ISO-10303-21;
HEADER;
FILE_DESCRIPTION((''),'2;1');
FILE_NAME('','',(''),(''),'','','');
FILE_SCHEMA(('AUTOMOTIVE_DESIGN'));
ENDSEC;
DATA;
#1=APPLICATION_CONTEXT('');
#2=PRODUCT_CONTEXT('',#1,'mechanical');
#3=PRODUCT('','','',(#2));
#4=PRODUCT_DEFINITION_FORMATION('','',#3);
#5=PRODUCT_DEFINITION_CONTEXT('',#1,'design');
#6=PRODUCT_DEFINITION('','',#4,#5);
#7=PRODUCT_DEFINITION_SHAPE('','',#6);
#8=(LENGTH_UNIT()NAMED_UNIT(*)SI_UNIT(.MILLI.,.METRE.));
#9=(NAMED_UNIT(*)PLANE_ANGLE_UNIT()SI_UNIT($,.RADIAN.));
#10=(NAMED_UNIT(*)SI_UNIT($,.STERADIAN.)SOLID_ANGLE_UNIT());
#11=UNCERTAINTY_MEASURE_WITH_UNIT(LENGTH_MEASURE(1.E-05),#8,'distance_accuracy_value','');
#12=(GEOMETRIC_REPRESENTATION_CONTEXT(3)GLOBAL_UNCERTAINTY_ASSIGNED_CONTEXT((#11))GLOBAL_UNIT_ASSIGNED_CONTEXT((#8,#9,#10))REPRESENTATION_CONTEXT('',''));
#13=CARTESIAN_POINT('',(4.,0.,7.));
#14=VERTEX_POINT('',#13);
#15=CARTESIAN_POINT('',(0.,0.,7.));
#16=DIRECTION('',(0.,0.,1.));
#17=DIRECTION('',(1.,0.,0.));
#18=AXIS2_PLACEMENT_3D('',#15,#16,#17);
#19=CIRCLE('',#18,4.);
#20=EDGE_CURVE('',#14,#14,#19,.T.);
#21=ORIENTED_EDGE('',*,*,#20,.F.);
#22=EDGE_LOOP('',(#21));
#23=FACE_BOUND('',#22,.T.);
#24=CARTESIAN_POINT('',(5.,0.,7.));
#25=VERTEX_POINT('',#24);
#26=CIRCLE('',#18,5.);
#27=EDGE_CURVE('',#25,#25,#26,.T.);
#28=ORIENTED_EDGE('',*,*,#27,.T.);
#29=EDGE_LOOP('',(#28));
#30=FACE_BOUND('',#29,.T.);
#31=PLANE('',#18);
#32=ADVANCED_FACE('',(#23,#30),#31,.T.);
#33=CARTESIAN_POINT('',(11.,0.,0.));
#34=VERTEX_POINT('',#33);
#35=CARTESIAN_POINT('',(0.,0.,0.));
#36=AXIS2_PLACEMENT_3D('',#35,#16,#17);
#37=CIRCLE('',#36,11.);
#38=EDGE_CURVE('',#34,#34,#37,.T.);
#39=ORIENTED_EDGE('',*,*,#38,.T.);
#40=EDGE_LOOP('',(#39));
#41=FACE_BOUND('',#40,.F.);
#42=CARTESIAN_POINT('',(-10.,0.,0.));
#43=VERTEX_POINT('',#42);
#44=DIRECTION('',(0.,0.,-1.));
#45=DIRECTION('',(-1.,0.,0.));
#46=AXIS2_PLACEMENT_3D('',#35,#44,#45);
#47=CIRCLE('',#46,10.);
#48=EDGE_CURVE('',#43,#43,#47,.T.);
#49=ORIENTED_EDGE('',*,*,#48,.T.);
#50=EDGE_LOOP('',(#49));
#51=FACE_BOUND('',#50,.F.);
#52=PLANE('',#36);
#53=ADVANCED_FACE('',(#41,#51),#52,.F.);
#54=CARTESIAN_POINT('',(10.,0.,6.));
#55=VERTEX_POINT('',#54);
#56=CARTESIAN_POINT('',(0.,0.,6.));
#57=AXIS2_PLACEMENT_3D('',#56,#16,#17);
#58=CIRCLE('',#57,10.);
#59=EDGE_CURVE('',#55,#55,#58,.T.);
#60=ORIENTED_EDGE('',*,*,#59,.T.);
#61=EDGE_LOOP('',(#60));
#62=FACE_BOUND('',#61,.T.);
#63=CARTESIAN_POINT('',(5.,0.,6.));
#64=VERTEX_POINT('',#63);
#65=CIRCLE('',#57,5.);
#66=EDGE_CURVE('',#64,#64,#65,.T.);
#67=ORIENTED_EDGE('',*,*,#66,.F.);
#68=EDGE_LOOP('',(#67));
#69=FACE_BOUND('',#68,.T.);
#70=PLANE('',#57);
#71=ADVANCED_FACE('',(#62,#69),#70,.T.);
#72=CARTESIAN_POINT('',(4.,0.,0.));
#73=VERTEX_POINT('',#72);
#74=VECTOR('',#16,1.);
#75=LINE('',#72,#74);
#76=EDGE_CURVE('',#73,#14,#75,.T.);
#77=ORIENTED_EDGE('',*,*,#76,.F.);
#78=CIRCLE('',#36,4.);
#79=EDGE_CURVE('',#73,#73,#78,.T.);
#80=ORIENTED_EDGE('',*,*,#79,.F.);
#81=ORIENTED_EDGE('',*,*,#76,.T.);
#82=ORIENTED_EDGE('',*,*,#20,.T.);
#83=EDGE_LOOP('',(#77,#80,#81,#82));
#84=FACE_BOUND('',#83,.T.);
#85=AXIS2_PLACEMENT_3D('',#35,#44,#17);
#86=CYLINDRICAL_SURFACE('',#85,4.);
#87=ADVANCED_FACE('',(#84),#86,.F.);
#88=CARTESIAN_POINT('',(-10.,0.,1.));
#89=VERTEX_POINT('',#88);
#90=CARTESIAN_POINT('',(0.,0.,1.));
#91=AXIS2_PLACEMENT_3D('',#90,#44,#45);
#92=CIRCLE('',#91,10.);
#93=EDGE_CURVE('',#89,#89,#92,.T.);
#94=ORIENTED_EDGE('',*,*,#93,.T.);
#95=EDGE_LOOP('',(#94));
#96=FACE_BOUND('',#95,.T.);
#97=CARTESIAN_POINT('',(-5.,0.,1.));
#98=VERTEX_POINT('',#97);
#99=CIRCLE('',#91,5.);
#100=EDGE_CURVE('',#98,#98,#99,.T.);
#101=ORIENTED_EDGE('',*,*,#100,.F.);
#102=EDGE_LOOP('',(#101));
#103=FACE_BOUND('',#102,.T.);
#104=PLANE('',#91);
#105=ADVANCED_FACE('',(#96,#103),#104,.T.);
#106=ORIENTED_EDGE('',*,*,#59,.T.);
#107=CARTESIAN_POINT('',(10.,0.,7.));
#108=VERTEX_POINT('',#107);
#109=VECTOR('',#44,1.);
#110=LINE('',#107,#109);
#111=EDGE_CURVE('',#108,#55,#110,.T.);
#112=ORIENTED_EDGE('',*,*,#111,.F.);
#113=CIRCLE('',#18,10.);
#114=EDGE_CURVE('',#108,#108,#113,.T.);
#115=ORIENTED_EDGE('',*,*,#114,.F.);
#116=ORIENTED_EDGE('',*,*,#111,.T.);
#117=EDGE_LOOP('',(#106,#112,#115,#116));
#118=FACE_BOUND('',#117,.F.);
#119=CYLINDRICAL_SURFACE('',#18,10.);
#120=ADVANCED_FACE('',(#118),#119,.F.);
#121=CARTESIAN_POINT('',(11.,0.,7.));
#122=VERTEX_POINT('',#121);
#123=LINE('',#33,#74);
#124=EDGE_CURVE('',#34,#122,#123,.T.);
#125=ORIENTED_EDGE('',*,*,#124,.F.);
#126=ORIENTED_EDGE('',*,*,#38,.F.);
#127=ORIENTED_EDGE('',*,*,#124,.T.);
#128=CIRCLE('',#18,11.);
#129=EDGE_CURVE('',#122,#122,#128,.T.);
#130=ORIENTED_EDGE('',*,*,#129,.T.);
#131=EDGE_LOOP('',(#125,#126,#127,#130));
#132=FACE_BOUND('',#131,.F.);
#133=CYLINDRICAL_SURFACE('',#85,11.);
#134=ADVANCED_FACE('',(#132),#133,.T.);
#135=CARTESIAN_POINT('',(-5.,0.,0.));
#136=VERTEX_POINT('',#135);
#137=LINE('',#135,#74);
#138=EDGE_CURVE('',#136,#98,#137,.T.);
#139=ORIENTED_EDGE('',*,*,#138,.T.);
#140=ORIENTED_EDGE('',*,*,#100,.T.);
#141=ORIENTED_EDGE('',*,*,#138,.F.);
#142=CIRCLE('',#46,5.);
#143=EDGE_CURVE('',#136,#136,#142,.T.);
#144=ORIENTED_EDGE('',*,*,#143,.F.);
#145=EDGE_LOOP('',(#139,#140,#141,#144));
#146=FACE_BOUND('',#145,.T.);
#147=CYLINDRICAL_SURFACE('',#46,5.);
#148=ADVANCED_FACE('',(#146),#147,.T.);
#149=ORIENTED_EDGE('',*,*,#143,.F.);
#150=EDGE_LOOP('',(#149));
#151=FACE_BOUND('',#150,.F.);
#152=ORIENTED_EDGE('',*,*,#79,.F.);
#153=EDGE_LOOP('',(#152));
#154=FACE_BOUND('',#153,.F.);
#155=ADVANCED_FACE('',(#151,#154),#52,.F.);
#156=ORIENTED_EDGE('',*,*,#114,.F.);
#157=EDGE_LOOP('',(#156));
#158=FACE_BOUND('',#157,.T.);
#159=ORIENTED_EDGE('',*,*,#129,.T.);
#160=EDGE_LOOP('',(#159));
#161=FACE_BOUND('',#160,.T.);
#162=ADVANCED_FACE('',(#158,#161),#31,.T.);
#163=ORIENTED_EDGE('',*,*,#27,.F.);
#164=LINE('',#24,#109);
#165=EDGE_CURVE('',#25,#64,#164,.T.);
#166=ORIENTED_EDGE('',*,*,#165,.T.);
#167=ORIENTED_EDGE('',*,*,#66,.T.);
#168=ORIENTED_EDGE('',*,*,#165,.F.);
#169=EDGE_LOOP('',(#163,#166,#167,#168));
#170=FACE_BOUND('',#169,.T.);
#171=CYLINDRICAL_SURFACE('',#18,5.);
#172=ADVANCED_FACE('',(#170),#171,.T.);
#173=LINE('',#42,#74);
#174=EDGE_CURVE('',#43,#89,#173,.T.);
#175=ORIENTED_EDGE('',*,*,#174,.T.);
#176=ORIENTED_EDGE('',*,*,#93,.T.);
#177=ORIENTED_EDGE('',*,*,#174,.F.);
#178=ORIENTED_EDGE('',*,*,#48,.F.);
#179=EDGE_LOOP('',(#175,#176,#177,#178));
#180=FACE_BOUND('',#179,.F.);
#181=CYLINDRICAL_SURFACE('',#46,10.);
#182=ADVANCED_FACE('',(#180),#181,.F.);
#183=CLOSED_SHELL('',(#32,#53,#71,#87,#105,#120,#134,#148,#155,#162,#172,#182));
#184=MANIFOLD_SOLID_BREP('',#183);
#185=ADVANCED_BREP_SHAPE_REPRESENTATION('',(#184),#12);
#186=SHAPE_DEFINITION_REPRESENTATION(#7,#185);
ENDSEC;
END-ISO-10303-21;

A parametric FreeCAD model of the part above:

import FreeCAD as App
import Part
import Sketcher

V = App.Vector

doc = App.newDocument("Part")
params = doc.addObject("Spreadsheet::Sheet", "Params")
for row, (alias, value) in enumerate([
    ("sketch1_diameter", "22 mm"),
    ("sketch1_diameter2", "8 mm"),
    ("pad1_length", "7 mm"),
    ("sketch2_diameter", "20 mm"),
    ("sketch2_diameter2", "10 mm"),
    ("pocket1_length", "1 mm"),
    ("sketch3_diameter", "20 mm"),
    ("sketch3_diameter2", "10 mm"),
    ("pocket2_length", "1 mm"),
], start=1):
    params.set(f"A{row}", alias)
    params.set(f"B{row}", "=" + value)
    params.setAlias(f"B{row}", alias)

body = doc.addObject("PartDesign::Body", "Body")

sketch1 = body.newObject("Sketcher::SketchObject", "Sketch")
sketch1.AttachmentSupport = (doc.getObject("XY_Plane"), [""])
sketch1.MapMode = "FlatFace"
sketch1.addGeometry([
    Part.Circle(V(0, 0, 0), V(0, 0, 1), 11),
    Part.Circle(V(0, 0, 0), V(0, 0, 1), 4),
], False)
sketch1.addConstraint([
    Sketcher.Constraint("Coincident", 0, 3, -1, 1),
    Sketcher.Constraint("Coincident", 1, 3, -1, 1),
    Sketcher.Constraint("Diameter", 0, 22.0),
    Sketcher.Constraint("Diameter", 1, 8.0),
])
sketch1.setExpression("Constraints[2]", "Params.sketch1_diameter")
sketch1.setExpression("Constraints[3]", "Params.sketch1_diameter2")
pad1 = body.newObject("PartDesign::Pad", "Pad")
pad1.Profile = sketch1
pad1.setExpression("Length", "Params.pad1_length")

sketch2 = body.newObject("Sketcher::SketchObject", "Sketch001")
sketch2.AttachmentSupport = (doc.getObject("XY_Plane"), [""])
sketch2.MapMode = "FlatFace"
sketch2.AttachmentOffset = App.Placement(V(0, 0, 7), App.Rotation())
sketch2.addGeometry([
    Part.Circle(V(0, 0, 0), V(0, 0, 1), 10),
    Part.Circle(V(0, 0, 0), V(0, 0, 1), 5),
], False)
sketch2.addConstraint([
    Sketcher.Constraint("Coincident", 0, 3, -1, 1),
    Sketcher.Constraint("Coincident", 1, 3, -1, 1),
    Sketcher.Constraint("Diameter", 0, 20.0),
    Sketcher.Constraint("Diameter", 1, 10.0),
])
sketch2.setExpression("Constraints[2]", "Params.sketch2_diameter")
sketch2.setExpression("Constraints[3]", "Params.sketch2_diameter2")
pocket1 = body.newObject("PartDesign::Pocket", "Pocket")
pocket1.Profile = sketch2
pocket1.setExpression("Length", "Params.pocket1_length")

sketch3 = body.newObject("Sketcher::SketchObject", "Sketch002")
sketch3.AttachmentSupport = (doc.getObject("XY_Plane"), [""])
sketch3.MapMode = "FlatFace"
sketch3.addGeometry([
    Part.Circle(V(0, 0, 0), V(0, 0, 1), 10),
    Part.Circle(V(0, 0, 0), V(0, 0, 1), 5),
], False)
sketch3.addConstraint([
    Sketcher.Constraint("Coincident", 0, 3, -1, 1),
    Sketcher.Constraint("Coincident", 1, 3, -1, 1),
    Sketcher.Constraint("Diameter", 0, 20.0),
    Sketcher.Constraint("Diameter", 1, 10.0),
])
sketch3.setExpression("Constraints[2]", "Params.sketch3_diameter")
sketch3.setExpression("Constraints[3]", "Params.sketch3_diameter2")
pocket2 = body.newObject("PartDesign::Pocket", "Pocket001")
pocket2.Profile = sketch3
pocket2.setExpression("Length", "Params.pocket2_length")
pocket2.Reversed = True

doc.recompute()
